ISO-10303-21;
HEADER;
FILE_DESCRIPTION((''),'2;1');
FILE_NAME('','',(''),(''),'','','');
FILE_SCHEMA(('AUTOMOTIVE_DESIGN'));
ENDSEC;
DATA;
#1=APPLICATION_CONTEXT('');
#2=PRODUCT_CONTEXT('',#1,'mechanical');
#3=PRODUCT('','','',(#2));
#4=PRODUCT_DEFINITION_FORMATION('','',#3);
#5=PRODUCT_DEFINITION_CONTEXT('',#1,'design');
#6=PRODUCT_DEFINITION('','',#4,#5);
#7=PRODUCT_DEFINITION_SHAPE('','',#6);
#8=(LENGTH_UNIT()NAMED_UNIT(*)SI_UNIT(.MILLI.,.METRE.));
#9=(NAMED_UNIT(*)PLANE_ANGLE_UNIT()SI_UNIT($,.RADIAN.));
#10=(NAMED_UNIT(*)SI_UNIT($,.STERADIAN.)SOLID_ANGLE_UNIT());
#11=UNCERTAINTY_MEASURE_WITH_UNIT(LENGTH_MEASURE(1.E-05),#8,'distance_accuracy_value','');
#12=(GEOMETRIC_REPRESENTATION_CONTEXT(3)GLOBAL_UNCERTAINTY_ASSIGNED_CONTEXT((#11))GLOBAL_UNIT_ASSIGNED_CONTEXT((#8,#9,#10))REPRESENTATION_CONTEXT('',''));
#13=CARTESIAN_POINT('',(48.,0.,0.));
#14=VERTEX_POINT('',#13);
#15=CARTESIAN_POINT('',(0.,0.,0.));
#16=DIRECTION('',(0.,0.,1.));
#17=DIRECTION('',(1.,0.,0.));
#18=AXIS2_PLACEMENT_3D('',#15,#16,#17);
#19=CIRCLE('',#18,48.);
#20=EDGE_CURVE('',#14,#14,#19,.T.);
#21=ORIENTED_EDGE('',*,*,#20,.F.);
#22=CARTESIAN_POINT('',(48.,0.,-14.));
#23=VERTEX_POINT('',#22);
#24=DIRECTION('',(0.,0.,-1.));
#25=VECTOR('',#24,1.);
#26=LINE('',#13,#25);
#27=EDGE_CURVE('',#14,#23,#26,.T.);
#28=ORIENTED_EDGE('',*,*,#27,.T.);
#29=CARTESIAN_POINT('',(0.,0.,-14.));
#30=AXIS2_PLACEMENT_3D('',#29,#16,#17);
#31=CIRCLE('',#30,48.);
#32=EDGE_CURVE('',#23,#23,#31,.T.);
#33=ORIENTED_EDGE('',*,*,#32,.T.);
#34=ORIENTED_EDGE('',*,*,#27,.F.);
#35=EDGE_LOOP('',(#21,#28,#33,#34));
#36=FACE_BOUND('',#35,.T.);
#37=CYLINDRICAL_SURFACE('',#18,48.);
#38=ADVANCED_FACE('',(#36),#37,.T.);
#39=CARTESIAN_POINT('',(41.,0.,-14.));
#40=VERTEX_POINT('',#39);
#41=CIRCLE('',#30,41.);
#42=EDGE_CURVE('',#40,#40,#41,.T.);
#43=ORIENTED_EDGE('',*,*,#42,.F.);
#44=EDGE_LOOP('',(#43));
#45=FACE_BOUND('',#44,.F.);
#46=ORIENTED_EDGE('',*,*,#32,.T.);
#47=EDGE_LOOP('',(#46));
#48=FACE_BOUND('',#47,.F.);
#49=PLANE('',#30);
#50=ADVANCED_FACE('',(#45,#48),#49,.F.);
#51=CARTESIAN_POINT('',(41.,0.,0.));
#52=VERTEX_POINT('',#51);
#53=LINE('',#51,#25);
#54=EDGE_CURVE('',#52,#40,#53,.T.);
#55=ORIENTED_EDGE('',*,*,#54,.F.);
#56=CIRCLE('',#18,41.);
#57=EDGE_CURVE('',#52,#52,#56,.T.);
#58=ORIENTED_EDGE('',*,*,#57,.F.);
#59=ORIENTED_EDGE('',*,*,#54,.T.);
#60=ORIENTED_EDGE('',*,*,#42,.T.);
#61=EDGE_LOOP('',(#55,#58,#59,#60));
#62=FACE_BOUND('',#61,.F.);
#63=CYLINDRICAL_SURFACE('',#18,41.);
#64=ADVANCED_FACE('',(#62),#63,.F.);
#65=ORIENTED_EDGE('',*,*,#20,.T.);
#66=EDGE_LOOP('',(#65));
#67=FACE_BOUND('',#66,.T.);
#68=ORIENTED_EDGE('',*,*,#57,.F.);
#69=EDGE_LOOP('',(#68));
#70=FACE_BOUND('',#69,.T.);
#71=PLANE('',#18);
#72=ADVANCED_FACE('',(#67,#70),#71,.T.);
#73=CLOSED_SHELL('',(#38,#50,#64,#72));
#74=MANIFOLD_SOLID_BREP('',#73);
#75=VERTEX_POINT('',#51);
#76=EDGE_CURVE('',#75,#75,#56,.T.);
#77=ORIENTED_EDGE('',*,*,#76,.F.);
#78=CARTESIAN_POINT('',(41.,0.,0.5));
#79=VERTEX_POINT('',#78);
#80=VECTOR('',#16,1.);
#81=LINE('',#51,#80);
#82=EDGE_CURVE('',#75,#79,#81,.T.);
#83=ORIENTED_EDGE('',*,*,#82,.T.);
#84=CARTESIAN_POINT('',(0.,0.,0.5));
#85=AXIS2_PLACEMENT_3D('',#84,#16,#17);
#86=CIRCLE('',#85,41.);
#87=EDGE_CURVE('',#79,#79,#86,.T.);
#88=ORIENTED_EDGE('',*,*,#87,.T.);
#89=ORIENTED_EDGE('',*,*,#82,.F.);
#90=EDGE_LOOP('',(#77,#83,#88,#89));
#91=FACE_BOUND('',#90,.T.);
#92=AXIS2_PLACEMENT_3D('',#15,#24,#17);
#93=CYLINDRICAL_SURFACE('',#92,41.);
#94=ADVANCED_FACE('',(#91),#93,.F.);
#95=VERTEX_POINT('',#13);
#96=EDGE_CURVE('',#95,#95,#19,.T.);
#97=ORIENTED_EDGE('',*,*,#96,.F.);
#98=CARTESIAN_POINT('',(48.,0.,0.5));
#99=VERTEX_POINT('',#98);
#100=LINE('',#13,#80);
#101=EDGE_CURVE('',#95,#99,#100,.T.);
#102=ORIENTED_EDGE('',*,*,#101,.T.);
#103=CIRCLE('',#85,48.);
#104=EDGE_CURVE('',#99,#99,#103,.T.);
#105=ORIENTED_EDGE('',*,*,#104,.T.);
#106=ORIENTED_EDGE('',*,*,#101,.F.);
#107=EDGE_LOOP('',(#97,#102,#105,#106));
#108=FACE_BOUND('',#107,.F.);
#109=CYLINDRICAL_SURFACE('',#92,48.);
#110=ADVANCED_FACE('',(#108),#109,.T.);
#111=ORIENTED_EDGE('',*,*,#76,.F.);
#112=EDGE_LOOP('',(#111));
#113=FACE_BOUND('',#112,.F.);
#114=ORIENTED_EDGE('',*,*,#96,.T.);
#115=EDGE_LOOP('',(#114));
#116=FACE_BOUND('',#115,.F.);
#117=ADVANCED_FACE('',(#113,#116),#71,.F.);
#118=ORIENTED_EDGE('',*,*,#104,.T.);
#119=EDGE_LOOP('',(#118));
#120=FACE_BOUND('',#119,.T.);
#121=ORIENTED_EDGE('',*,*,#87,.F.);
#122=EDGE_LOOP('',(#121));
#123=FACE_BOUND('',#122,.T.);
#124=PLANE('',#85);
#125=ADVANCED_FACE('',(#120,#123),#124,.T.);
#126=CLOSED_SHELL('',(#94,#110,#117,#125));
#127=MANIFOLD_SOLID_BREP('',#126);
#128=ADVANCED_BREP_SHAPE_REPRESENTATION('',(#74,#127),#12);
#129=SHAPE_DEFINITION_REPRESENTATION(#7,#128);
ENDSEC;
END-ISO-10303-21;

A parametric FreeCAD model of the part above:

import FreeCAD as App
import Part
import Sketcher
from FreeCAD import Vector
Q = App.Units.Quantity

doc = App.newDocument("Part")
body = doc.addObject("PartDesign::Body", "Body")

# Sketch on XY plane
sketch1 = body.newObject("Sketcher::SketchObject", "Sketch")
sketch1.AttachmentSupport = (doc.getObject("XY_Plane"), [""])
sketch1.MapMode = "FlatFace"
sketch1.addGeometry([
    Part.Circle(Vector(0, 0, 0), Vector(0, 0, 1), 48),
    Part.Circle(Vector(0, 0, 0), Vector(0, 0, 1), 41),
], False)
sketch1.addConstraint([
    Sketcher.Constraint("Coincident", 0, 3, -1, 1),
    Sketcher.Constraint("Coincident", 1, 3, -1, 1),
    Sketcher.Constraint("Diameter", 0, Q("96 mm")),
    Sketcher.Constraint("Diameter", 1, Q("82 mm")),
])
pad1 = body.newObject("PartDesign::Pad", "Pad")
pad1.Profile = sketch1
pad1.Length = 14
pad1.Reversed = True
body2 = doc.addObject("PartDesign::Body", "Body001")

# Sketch on XY plane
sketch2 = body2.newObject("Sketcher::SketchObject", "Sketch001")
sketch2.AttachmentSupport = (doc.getObject("XY_Plane001"), [""])
sketch2.MapMode = "FlatFace"
sketch2.addGeometry([
    Part.Circle(Vector(0, 0, 0), Vector(0, 0, 1), 48),
    Part.Circle(Vector(0, 0, 0), Vector(0, 0, 1), 41),
], False)
sketch2.addConstraint([
    Sketcher.Constraint("Coincident", 0, 3, -1, 1),
    Sketcher.Constraint("Coincident", 1, 3, -1, 1),
    Sketcher.Constraint("Diameter", 0, Q("96 mm")),
    Sketcher.Constraint("Diameter", 1, Q("82 mm")),
])
pad2 = body2.newObject("PartDesign::Pad", "Pad001")
pad2.Profile = sketch2
pad2.Length = 0.5

doc.recompute()
